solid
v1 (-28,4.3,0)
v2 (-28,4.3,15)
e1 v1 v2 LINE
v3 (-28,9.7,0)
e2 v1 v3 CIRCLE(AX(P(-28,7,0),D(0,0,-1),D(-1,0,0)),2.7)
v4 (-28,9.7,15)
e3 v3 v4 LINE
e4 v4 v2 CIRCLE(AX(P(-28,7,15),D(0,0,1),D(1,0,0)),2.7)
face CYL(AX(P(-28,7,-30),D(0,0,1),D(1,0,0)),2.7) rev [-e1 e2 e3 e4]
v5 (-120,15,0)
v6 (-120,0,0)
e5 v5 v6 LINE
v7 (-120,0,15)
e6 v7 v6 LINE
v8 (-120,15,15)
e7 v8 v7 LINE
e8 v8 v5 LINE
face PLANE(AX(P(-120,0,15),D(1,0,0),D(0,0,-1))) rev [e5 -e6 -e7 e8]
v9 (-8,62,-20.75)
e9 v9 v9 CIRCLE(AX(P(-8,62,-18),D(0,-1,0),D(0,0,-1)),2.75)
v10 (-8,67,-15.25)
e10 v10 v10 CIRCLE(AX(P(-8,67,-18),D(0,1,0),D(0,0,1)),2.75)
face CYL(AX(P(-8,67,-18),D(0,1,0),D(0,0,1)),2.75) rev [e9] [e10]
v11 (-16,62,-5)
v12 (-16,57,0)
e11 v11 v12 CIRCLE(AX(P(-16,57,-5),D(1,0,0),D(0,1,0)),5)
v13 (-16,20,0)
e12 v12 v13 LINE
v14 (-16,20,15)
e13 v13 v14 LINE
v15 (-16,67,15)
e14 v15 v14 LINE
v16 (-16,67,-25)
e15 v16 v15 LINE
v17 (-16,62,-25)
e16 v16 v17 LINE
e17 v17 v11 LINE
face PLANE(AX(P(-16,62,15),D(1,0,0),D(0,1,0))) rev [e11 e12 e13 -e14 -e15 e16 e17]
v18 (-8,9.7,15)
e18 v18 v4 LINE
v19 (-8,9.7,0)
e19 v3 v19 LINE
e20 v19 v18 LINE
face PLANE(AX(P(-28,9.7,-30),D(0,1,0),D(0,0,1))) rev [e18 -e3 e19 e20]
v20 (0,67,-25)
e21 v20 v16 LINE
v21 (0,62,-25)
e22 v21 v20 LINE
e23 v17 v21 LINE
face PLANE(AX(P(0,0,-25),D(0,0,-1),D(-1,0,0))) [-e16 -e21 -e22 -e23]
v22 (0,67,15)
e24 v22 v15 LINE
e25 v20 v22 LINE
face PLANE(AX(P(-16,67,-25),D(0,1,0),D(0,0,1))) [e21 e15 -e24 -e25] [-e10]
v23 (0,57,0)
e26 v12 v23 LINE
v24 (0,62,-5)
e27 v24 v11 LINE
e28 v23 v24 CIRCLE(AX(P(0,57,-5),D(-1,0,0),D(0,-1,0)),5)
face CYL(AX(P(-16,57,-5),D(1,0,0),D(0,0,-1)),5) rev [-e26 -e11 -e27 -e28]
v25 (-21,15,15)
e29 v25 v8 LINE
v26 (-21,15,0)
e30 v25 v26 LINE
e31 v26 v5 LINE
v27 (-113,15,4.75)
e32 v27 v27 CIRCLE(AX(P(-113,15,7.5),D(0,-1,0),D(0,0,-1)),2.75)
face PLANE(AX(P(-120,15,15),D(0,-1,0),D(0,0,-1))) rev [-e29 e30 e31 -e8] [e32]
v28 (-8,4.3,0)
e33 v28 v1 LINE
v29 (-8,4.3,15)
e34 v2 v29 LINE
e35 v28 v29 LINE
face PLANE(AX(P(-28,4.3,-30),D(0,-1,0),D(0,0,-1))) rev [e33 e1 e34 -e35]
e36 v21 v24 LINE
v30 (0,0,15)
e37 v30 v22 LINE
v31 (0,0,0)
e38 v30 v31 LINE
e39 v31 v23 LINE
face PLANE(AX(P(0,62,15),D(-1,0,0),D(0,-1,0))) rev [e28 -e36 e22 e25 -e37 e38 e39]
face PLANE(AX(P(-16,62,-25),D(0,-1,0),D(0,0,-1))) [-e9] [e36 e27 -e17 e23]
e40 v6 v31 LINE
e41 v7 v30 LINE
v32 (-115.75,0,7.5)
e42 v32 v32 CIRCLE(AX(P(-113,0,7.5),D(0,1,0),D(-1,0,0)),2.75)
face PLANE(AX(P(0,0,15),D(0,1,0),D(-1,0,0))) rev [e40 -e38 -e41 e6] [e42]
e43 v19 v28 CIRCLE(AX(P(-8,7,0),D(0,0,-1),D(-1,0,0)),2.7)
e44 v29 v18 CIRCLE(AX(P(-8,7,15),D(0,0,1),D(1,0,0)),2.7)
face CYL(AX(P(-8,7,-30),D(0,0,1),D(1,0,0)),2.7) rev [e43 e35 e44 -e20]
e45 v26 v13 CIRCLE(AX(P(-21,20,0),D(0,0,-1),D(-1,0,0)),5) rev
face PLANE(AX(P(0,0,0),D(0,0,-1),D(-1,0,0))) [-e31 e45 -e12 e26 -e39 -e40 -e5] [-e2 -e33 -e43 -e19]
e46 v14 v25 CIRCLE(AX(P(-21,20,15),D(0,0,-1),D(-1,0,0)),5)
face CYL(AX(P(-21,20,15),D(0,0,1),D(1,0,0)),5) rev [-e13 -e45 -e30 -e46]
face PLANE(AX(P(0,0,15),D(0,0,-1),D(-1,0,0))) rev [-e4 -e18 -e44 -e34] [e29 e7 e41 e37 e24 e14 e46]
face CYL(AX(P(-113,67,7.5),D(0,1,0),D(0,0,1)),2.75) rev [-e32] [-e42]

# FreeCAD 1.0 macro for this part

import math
import FreeCAD as App
import Part
import Sketcher
from FreeCAD import Vector


def edges_at(feature, points):
    """Names of the edges that pass closest to the given points."""
    edges = feature.Shape.Edges
    near = lambda p: min(range(len(edges)), key=lambda i: edges[i].distToShape(Part.Vertex(*p))[0])
    return sorted({f"Edge{near(p) + 1}" for p in points})

doc = App.newDocument("Part")
body = doc.addObject("PartDesign::Body", "Body")

# Sketch on XY plane
sketch1 = body.newObject("Sketcher::SketchObject", "Sketch")
sketch1.AttachmentSupport = (doc.getObject("XY_Plane"), [""])
sketch1.MapMode = "FlatFace"
sketch1.addGeometry(Part.LineSegment(Vector(-120, 0, 0), Vector(0, 0, 0)), False)
sketch1.addGeometry(Part.LineSegment(Vector(0, 0, 0), Vector(0, 62, 0)), False)
sketch1.addGeometry(Part.LineSegment(Vector(0, 62, 0), Vector(-16, 62, 0)), False)
sketch1.addGeometry(Part.LineSegment(Vector(-16, 62, 0), Vector(-16, 15, 0)), False)
sketch1.addGeometry(Part.LineSegment(Vector(-16, 15, 0), Vector(-120, 15, 0)), False)
sketch1.addGeometry(Part.LineSegment(Vector(-120, 15, 0), Vector(-120, 0, 0)), False)
sketch1.addConstraint(Sketcher.Constraint("Coincident", 0, 2, 1, 1))
sketch1.addConstraint(Sketcher.Constraint("Coincident", 1, 2, 2, 1))
sketch1.addConstraint(Sketcher.Constraint("Coincident", 2, 2, 3, 1))
sketch1.addConstraint(Sketcher.Constraint("Coincident", 3, 2, 4, 1))
sketch1.addConstraint(Sketcher.Constraint("Coincident", 4, 2, 5, 1))
sketch1.addConstraint(Sketcher.Constraint("Coincident", 5, 2, 0, 1))
sketch1.addConstraint(Sketcher.Constraint("Horizontal", 0))
sketch1.addConstraint(Sketcher.Constraint("Vertical", 1))
sketch1.addConstraint(Sketcher.Constraint("Horizontal", 2))
sketch1.addConstraint(Sketcher.Constraint("Vertical", 3))
sketch1.addConstraint(Sketcher.Constraint("Horizontal", 4))
sketch1.addConstraint(Sketcher.Constraint("Vertical", 5))
sketch1.addConstraint(Sketcher.Constraint("Coincident", 0, 2, -1, 1))
sketch1.addConstraint(Sketcher.Constraint("DistanceX", 0, 1, 0, 2, 120.0))
sketch1.addConstraint(Sketcher.Constraint("DistanceX", 2, 2, 2, 1, 16.0))
sketch1.addConstraint(Sketcher.Constraint("DistanceY", 1, 1, 1, 2, 62.0))
sketch1.addConstraint(Sketcher.Constraint("DistanceY", 3, 2, 3, 1, 47.0))
pad1 = body.newObject("PartDesign::Pad", "Pad")
pad1.Profile = sketch1
pad1.Length = 15

# Sketch on XY plane
sketch2 = body.newObject("Sketcher::SketchObject", "Sketch001")
sketch2.AttachmentSupport = (doc.getObject("XY_Plane"), [""])
sketch2.MapMode = "FlatFace"
sketch2.AttachmentOffset = App.Placement(Vector(0, 0, 15), App.Rotation())
sketch2.addGeometry(Part.LineSegment(Vector(-16, 67, 0), Vector(-16, 62, 0)), False)
sketch2.addGeometry(Part.LineSegment(Vector(-16, 62, 0), Vector(0, 62, 0)), False)
sketch2.addGeometry(Part.LineSegment(Vector(0, 62, 0), Vector(0, 67, 0)), False)
sketch2.addGeometry(Part.LineSegment(Vector(0, 67, 0), Vector(-16, 67, 0)), False)
sketch2.addConstraint(Sketcher.Constraint("Coincident", 0, 2, 1, 1))
sketch2.addConstraint(Sketcher.Constraint("Coincident", 1, 2, 2, 1))
sketch2.addConstraint(Sketcher.Constraint("Coincident", 2, 2, 3, 1))
sketch2.addConstraint(Sketcher.Constraint("Coincident", 3, 2, 0, 1))
sketch2.addConstraint(Sketcher.Constraint("Vertical", 0))
sketch2.addConstraint(Sketcher.Constraint("Horizontal", 1))
sketch2.addConstraint(Sketcher.Constraint("Vertical", 2))
sketch2.addConstraint(Sketcher.Constraint("Horizontal", 3))
sketch2.addConstraint(Sketcher.Constraint("PointOnObject", 1, 2, -2))
sketch2.addConstraint(Sketcher.Constraint("DistanceX", 1, 1, 1, 2, 16.0))
sketch2.addConstraint(Sketcher.Constraint("DistanceY", 0, 2, 0, 1, 5.0))
sketch2.addConstraint(Sketcher.Constraint("DistanceY", -1, 1, 0, 2, 62.0))
pad2 = body.newObject("PartDesign::Pad", "Pad001")
pad2.Profile = sketch2
pad2.Length = 40
pad2.Reversed = True

# Sketch on XY plane
sketch3 = body.newObject("Sketcher::SketchObject", "Sketch002")
sketch3.AttachmentSupport = (doc.getObject("XY_Plane"), [""])
sketch3.MapMode = "FlatFace"
sketch3.AttachmentOffset = App.Placement(Vector(0, 0, 15), App.Rotation())
sketch3.addGeometry(Part.LineSegment(Vector(-8, 9.7, 0), Vector(-28, 9.7, 0)), False)
sketch3.addGeometry(Part.ArcOfCircle(Part.Circle(Vector(-28, 7, 0), Vector(0, 0, 1), 2.7), math.radians(90), math.radians(270)), False)
sketch3.addGeometry(Part.LineSegment(Vector(-28, 4.3, 0), Vector(-8, 4.3, 0)), False)
sketch3.addGeometry(Part.ArcOfCircle(Part.Circle(Vector(-8, 7, 0), Vector(0, 0, 1), 2.7), math.radians(-90), math.radians(90)), False)
sketch3.addConstraint(Sketcher.Constraint("Tangent", 0, 2, 1, 1))
sketch3.addConstraint(Sketcher.Constraint("Tangent", 1, 2, 2, 1))
sketch3.addConstraint(Sketcher.Constraint("Tangent", 2, 2, 3, 1))
sketch3.addConstraint(Sketcher.Constraint("Tangent", 3, 2, 0, 1))
sketch3.addConstraint(Sketcher.Constraint("Horizontal", 0))
sketch3.addConstraint(Sketcher.Constraint("Horizontal", 2))
sketch3.addConstraint(Sketcher.Constraint("Radius", 1, 2.7))
sketch3.addConstraint(Sketcher.Constraint("DistanceX", 0, 2, 0, 1, 20.0))
sketch3.addConstraint(Sketcher.Constraint("DistanceX", 1, 3, -1, 1, 28.0))
sketch3.addConstraint(Sketcher.Constraint("DistanceY", -1, 1, 1, 3, 7.0))
pocket1 = body.newObject("PartDesign::Pocket", "Pocket")
pocket1.Profile = sketch3
pocket1.Length = 45

# Sketch on XZ plane
sketch4 = body.newObject("Sketcher::SketchObject", "Sketch003")
sketch4.AttachmentSupport = (doc.getObject("XZ_Plane"), [""])
sketch4.MapMode = "FlatFace"
sketch4.AttachmentOffset = App.Placement(Vector(0, 0, -67), App.Rotation())
sketch4.addGeometry(Part.Circle(Vector(-8, -18, 0), Vector(0, 0, 1), 2.8), False)
sketch4.addGeometry(Part.Circle(Vector(-113, 7.5, 0), Vector(0, 0, 1), 2.8), False)
sketch4.addConstraint(Sketcher.Constraint("Equal", 0, 1))
sketch4.addConstraint(Sketcher.Constraint("Diameter", 0, 5.5))
sketch4.addConstraint(Sketcher.Constraint("DistanceX", 0, 3, -1, 1, 8.0))
sketch4.addConstraint(Sketcher.Constraint("DistanceY", 0, 3, -1, 1, 18.0))
sketch4.addConstraint(Sketcher.Constraint("DistanceX", 1, 3, -1, 1, 113.0))
sketch4.addConstraint(Sketcher.Constraint("DistanceY", -1, 1, 1, 3, 7.5))
doc.recompute()
hole = body.newObject("PartDesign::Hole", "Hole")
hole.Profile = sketch4
hole.ThreadType = "None"
hole.Diameter = 5.5
hole.DepthType = "ThroughAll"
hole.Reversed = True
doc.recompute()

fillet = body.newObject("PartDesign::Fillet", "Fillet")
fillet.Base = (hole, edges_at(hole, [(-16, 15, 7.5), (-8, 62, 0)]))
fillet.Radius = 5

doc.recompute()
